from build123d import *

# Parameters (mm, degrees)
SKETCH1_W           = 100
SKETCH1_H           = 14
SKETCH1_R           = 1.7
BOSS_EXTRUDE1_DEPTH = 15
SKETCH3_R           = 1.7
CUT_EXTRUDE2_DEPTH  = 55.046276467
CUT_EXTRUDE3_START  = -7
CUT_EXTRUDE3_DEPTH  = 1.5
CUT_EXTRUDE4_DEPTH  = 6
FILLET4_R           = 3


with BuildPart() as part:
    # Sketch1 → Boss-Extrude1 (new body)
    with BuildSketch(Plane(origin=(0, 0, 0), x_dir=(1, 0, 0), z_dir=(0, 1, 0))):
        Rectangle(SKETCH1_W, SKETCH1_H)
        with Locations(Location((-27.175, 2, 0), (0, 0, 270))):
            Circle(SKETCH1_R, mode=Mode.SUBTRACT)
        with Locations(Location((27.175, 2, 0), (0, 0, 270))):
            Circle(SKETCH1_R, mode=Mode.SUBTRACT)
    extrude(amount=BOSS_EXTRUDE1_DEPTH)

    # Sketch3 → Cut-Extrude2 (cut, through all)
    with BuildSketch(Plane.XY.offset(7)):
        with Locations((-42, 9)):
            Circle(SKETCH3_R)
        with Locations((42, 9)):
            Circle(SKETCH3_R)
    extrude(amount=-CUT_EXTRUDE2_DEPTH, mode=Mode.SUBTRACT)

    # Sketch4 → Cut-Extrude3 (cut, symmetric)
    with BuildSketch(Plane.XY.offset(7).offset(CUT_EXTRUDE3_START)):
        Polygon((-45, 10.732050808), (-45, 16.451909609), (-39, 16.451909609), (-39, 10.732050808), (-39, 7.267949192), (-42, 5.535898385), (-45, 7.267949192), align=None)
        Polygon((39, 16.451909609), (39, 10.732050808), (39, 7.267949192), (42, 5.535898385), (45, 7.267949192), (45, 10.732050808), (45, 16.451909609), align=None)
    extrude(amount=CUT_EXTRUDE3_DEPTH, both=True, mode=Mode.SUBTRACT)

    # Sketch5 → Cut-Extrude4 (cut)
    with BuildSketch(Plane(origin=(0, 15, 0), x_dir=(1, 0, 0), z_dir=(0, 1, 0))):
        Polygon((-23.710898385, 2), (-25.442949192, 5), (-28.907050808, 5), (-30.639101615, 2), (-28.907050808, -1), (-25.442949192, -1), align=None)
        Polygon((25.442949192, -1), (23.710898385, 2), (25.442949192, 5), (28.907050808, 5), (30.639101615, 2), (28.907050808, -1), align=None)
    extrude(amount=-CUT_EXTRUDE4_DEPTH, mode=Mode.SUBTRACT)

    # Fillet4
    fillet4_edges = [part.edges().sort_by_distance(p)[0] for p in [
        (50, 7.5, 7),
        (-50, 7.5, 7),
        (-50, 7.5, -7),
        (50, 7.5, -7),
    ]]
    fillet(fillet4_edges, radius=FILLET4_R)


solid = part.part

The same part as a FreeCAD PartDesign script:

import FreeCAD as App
import Part
import Sketcher
Q = App.Units.Quantity


def edges_at(feature, points):
    """Names of the edges that pass closest to the given points."""
    edges = feature.Shape.Edges
    near = lambda p: min(range(len(edges)), key=lambda i: edges[i].distToShape(Part.Vertex(*p))[0])
    return sorted({f"Edge{near(p) + 1}" for p in points})


def add_polygon(sketch, points):
    """Adds a closed chain of lines whose ends are joined by coincident constraints."""
    first, n = sketch.GeometryCount, len(points)
    for a, b in zip(points, points[1:] + points[:1]):
        sketch.addGeometry(Part.LineSegment(App.Vector(*a, 0), App.Vector(*b, 0)), False)
    for i in range(n):
        sketch.addConstraint(Sketcher.Constraint("Coincident", first + i, 2, first + (i + 1) % n, 1))

doc = App.newDocument("Part")
body = doc.addObject("PartDesign::Body", "Body")

# Sketch on XZ plane
sketch1 = doc.addObject("Sketcher::SketchObject", "Sketch")
body.addObject(sketch1)
sketch1.AttachmentSupport = (doc.XZ_Plane, [""])
sketch1.MapMode = "FlatFace"
add_polygon(sketch1, [(-50, -7), (-50, 7), (50, 7), (50, -7)])  # lines 0-3
sketch1.addGeometry(Part.Circle(App.Vector(-27.2, -2, 0), App.Vector(0, 0, 1), 1.7), False)  # 4
sketch1.addGeometry(Part.Circle(App.Vector(27.2, -2, 0), App.Vector(0, 0, 1), 1.7), False)  # 5
sketch1.addConstraint(Sketcher.Constraint("Vertical", 0))
sketch1.addConstraint(Sketcher.Constraint("Horizontal", 1))
sketch1.addConstraint(Sketcher.Constraint("Vertical", 2))
sketch1.addConstraint(Sketcher.Constraint("Horizontal", 3))
sketch1.addConstraint(Sketcher.Constraint("Equal", 4, 5))
sketch1.addConstraint(Sketcher.Constraint("Symmetric", 0, 2, 2, 2, -1, 1))
sketch1.addConstraint(Sketcher.Constraint("Symmetric", 4, 3, 5, 3, -2))
sketch1.addConstraint(Sketcher.Constraint("Diameter", 4, 3.4))
sketch1.addConstraint(Sketcher.Constraint("DistanceX", 1, 1, 1, 2, 100.0))
sketch1.addConstraint(Sketcher.Constraint("DistanceY", 0, 1, 0, 2, 14.0))
sketch1.addConstraint(Sketcher.Constraint("DistanceY", 4, 3, -1, 1, 2.0))
sketch1.addConstraint(Sketcher.Constraint("DistanceX", 4, 3, 5, 3, 54.35))
pad1 = doc.addObject("PartDesign::Pad", "Pad")
body.addObject(pad1)
pad1.Profile = sketch1
pad1.Length = 15
pad1.Reversed = True

# Sketch on XY plane
sketch2 = doc.addObject("Sketcher::SketchObject", "Sketch001")
body.addObject(sketch2)
sketch2.AttachmentSupport = (doc.XY_Plane, [""])
sketch2.MapMode = "FlatFace"
sketch2.AttachmentOffset = App.Placement(App.Vector(0, 0, 7), App.Rotation())
sketch2.addGeometry(Part.Circle(App.Vector(-42, 9, 0), App.Vector(0, 0, 1), 1.7), False)
sketch2.addGeometry(Part.Circle(App.Vector(42, 9, 0), App.Vector(0, 0, 1), 1.7), False)
sketch2.addConstraint(Sketcher.Constraint("Equal", 0, 1))
sketch2.addConstraint(Sketcher.Constraint("Symmetric", 0, 3, 1, 3, -2))
sketch2.addConstraint(Sketcher.Constraint("Diameter", 0, 3.4))
sketch2.addConstraint(Sketcher.Constraint("DistanceX", 0, 3, -1, 1, 42.0))
sketch2.addConstraint(Sketcher.Constraint("DistanceY", -1, 1, 0, 3, 9.0))
pocket1 = doc.addObject("PartDesign::Pocket", "Pocket")
body.addObject(pocket1)
pocket1.Profile = sketch2
pocket1.Type = "ThroughAll"

# Sketch on XY plane
sketch3 = doc.addObject("Sketcher::SketchObject", "Sketch002")
body.addObject(sketch3)
sketch3.AttachmentSupport = (doc.XY_Plane, [""])
sketch3.MapMode = "FlatFace"
add_polygon(sketch3, [(-45, 16.5), (-45, 7.3), (-42, 5.5), (-39, 7.3), (-39, 16.5)])  # lines 0-4
add_polygon(sketch3, [(39, 16.5), (39, 7.3), (42, 5.5), (45, 7.3), (45, 16.5)])  # lines 5-9
sketch3.addConstraint(Sketcher.Constraint("Vertical", 0))
sketch3.addConstraint(Sketcher.Constraint("Vertical", 3))
sketch3.addConstraint(Sketcher.Constraint("Horizontal", 4))
sketch3.addConstraint(Sketcher.Constraint("Vertical", 5))
sketch3.addConstraint(Sketcher.Constraint("Vertical", 8))
sketch3.addConstraint(Sketcher.Constraint("Horizontal", 9))
sketch3.addConstraint(Sketcher.Constraint("Symmetric", 2, 2, 5, 2, -2))
sketch3.addConstraint(Sketcher.Constraint("Symmetric", 1, 2, 6, 2, -2))
sketch3.addConstraint(Sketcher.Constraint("Symmetric", 0, 2, 7, 2, -2))
sketch3.addConstraint(Sketcher.Constraint("Parallel", 1, 6))
sketch3.addConstraint(Sketcher.Constraint("Horizontal", 0, 2, 2, 2))
sketch3.addConstraint(Sketcher.Constraint("Horizontal", 4, 2, 8, 2))
sketch3.addConstraint(Sketcher.Constraint("DistanceX", 4, 2, 4, 1, 6.0))
sketch3.addConstraint(Sketcher.Constraint("Angle", 1, Q("-30 deg")))
sketch3.addConstraint(Sketcher.Constraint("DistanceX", 0, 2, -1, 1, 45.0))
sketch3.addConstraint(Sketcher.Constraint("DistanceY", 0, 2, 0, 1, 9.18396))
sketch3.addConstraint(Sketcher.Constraint("DistanceY", -1, 1, 1, 2, 5.535898))
pocket2 = doc.addObject("PartDesign::Pocket", "Pocket001")
body.addObject(pocket2)
pocket2.Profile = sketch3
pocket2.Length = 3
pocket2.Midplane = True

# Sketch on XZ plane
sketch4 = doc.addObject("Sketcher::SketchObject", "Sketch003")
body.addObject(sketch4)
sketch4.AttachmentSupport = (doc.XZ_Plane, [""])
sketch4.MapMode = "FlatFace"
sketch4.AttachmentOffset = App.Placement(App.Vector(0, 0, -15), App.Rotation())
add_polygon(sketch4, [(-23.7, -2), (-25.4, -5), (-28.9, -5), (-30.6, -2), (-28.9, 1), (-25.4, 1)])  # lines 0-5
add_polygon(sketch4, [(23.7, -2), (25.4, 1), (28.9, 1), (30.6, -2), (28.9, -5), (25.4, -5)])  # lines 6-11
sketch4.addConstraint(Sketcher.Constraint("Horizontal", 1))
sketch4.addConstraint(Sketcher.Constraint("Horizontal", 4))
sketch4.addConstraint(Sketcher.Constraint("Horizontal", 7))
sketch4.addConstraint(Sketcher.Constraint("Horizontal", 10))
sketch4.addConstraint(Sketcher.Constraint("Symmetric", 4, 2, 6, 2, -2))
sketch4.addConstraint(Sketcher.Constraint("Symmetric", 2, 2, 8, 2, -2))
sketch4.addConstraint(Sketcher.Constraint("Symmetric", 1, 2, 9, 2, -2))
sketch4.addConstraint(Sketcher.Constraint("Symmetric", 5, 2, 11, 2, -2))
sketch4.addConstraint(Sketcher.Constraint("Parallel", 0, 3))
sketch4.addConstraint(Sketcher.Constraint("Parallel", 2, 5))
sketch4.addConstraint(Sketcher.Constraint("Parallel", 3, 6))
sketch4.addConstraint(Sketcher.Constraint("Parallel", 5, 8))
sketch4.addConstraint(Sketcher.Constraint("Parallel", 8, 11))
sketch4.addConstraint(Sketcher.Constraint("Horizontal", 2, 2, 5, 2))
sketch4.addConstraint(Sketcher.Constraint("Vertical", 1, 2, 3, 2))
sketch4.addConstraint(Sketcher.Constraint("Angle", 0, Q("-120 deg")))
sketch4.addConstraint(Sketcher.Constraint("DistanceY", 0, 2, -1, 1, 5.0))
sketch4.addConstraint(Sketcher.Constraint("DistanceY", 2, 2, -1, 1, 2.0))
sketch4.addConstraint(Sketcher.Constraint("DistanceX", 3, 2, 6, 2, 54.35))
sketch4.addConstraint(Sketcher.Constraint("DistanceX", 1, 2, 1, 1, 3.464102))
pocket3 = doc.addObject("PartDesign::Pocket", "Pocket002")
body.addObject(pocket3)
pocket3.Profile = sketch4
pocket3.Length = 6
pocket3.Reversed = True
doc.recompute()

fillet = doc.addObject("PartDesign::Fillet", "Fillet")
body.addObject(fillet)
fillet.Base = (pocket3, edges_at(pocket3, [
    (50, 7.5, 7),
    (-50, 7.5, 7),
    (-50, 7.5, -7),
    (50, 7.5, -7),
]))
fillet.Radius = 3

doc.recompute()
